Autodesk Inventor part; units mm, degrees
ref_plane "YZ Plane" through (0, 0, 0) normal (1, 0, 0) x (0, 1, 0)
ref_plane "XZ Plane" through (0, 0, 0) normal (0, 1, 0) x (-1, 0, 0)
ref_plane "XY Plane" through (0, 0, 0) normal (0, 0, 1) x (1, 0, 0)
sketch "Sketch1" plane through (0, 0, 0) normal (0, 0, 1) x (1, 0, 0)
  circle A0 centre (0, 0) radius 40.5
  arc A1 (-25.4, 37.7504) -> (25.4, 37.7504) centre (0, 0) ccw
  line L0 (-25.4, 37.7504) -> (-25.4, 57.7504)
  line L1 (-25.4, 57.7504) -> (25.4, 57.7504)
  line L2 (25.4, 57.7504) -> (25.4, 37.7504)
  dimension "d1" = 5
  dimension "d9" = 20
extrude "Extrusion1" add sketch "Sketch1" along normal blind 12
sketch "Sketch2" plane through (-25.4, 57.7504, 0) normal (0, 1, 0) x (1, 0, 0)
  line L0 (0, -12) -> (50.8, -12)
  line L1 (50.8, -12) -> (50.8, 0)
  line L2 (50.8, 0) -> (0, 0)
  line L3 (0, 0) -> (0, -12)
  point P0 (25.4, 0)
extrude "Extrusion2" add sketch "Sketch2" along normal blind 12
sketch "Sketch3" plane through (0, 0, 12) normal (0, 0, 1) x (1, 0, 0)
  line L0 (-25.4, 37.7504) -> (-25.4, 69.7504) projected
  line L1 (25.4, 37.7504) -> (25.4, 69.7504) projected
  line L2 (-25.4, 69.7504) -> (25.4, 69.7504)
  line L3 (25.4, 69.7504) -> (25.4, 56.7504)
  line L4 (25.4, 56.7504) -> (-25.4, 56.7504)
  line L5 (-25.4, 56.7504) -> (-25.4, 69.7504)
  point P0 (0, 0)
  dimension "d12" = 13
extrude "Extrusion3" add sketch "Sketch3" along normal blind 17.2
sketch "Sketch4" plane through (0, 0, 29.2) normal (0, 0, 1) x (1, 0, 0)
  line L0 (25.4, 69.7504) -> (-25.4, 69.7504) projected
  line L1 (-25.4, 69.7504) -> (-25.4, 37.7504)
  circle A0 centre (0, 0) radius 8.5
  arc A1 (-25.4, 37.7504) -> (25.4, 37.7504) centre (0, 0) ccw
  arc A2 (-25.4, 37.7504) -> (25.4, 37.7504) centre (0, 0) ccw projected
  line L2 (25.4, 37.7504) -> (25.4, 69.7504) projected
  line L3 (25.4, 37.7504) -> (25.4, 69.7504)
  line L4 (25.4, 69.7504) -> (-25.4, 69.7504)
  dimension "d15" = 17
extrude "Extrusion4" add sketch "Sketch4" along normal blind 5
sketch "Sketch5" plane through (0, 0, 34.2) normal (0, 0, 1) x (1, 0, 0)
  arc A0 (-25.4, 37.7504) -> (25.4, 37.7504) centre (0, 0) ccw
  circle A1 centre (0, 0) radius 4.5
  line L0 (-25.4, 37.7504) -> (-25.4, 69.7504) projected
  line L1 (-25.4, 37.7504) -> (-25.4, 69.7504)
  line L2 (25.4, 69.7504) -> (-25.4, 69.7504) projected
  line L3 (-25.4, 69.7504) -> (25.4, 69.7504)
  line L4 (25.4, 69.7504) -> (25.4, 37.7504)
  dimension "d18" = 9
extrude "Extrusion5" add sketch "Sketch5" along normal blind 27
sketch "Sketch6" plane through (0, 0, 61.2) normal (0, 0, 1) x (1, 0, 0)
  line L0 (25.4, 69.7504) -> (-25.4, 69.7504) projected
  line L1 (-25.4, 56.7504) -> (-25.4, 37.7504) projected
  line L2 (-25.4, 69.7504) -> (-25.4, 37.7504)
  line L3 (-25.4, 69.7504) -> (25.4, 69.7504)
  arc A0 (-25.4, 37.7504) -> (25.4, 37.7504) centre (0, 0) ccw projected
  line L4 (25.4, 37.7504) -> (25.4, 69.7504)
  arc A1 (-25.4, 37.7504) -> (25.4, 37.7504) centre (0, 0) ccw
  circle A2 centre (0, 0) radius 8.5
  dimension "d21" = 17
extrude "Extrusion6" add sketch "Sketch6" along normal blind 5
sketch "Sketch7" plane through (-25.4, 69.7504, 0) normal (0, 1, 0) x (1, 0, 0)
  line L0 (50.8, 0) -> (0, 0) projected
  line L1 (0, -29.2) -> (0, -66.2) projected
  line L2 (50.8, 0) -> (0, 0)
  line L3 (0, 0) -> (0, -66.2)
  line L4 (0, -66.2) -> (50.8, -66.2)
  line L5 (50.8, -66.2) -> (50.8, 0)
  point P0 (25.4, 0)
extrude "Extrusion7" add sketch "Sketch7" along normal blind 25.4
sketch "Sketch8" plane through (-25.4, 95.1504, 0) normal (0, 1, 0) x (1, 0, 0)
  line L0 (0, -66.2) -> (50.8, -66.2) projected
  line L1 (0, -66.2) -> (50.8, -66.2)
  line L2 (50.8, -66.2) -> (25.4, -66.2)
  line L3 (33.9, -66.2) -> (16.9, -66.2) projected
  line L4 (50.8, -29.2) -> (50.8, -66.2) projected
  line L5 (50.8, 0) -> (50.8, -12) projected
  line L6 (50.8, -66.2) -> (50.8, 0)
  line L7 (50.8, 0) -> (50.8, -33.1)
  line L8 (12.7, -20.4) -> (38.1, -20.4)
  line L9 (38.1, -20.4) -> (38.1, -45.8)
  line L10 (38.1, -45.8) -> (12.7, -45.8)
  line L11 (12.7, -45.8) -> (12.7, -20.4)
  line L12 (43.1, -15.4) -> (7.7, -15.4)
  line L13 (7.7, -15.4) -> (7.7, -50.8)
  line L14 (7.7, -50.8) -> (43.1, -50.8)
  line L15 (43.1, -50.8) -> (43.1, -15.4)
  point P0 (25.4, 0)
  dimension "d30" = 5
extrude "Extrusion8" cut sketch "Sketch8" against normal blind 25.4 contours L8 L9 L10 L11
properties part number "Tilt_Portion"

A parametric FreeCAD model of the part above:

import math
import FreeCAD as App
import Part
import Sketcher
from FreeCAD import Vector

doc = App.newDocument("Part")
body = doc.addObject("PartDesign::Body", "Body")

# Sketch on XY plane
sketch1 = body.newObject("Sketcher::SketchObject", "Sketch")
sketch1.AttachmentSupport = (doc.getObject("XY_Plane"), [""])
sketch1.MapMode = "FlatFace"
sketch1.addGeometry([
    Part.LineSegment(Vector(-25, 58, 0), Vector(-25, 38, 0)),  # 0
    Part.ArcOfCircle(Part.Circle(Vector(0, 0, 0), Vector(0, 0, 1), 46), math.radians(124), math.radians(416)),  # 1
    Part.LineSegment(Vector(25, 38, 0), Vector(25, 58, 0)),  # 2
    Part.LineSegment(Vector(25, 58, 0), Vector(-25, 58, 0)),  # 3
    Part.Circle(Vector(0, 0, 0), Vector(0, 0, 1), 40),  # 4
], False)
sketch1.addConstraint([
    Sketcher.Constraint("Coincident", 0, 2, 1, 1),
    Sketcher.Constraint("Coincident", 1, 2, 2, 1),
    Sketcher.Constraint("Coincident", 2, 2, 3, 1),
    Sketcher.Constraint("Coincident", 3, 2, 0, 1),
    Sketcher.Constraint("Vertical", 0),
    Sketcher.Constraint("Vertical", 2),
    Sketcher.Constraint("Horizontal", 3),
    Sketcher.Constraint("Coincident", 1, 3, -1, 1),
    Sketcher.Constraint("Coincident", 4, 3, -1, 1),
    Sketcher.Constraint("Horizontal", 0, 2, 1, 2),
    Sketcher.Constraint("DistanceY", 0, 2, 0, 1, 20.0),
    Sketcher.Constraint("Diameter", 4, 81.0),
    Sketcher.Constraint("Radius", 1, 45.5),
    Sketcher.Constraint("DistanceX", 3, 2, 3, 1, 50.8),
])
pad1 = body.newObject("PartDesign::Pad", "Pad")
pad1.Profile = sketch1
pad1.Length = 12

# Sketch on XZ plane
sketch2 = body.newObject("Sketcher::SketchObject", "Sketch001")
sketch2.AttachmentSupport = (doc.getObject("XZ_Plane"), [""])
sketch2.MapMode = "FlatFace"
sketch2.AttachmentOffset = App.Placement(Vector(0, 0, -57.7504), App.Rotation())
sketch2.addGeometry([
    Part.LineSegment(Vector(-25, 0, 0), Vector(-25, 12, 0)),
    Part.LineSegment(Vector(-25, 12, 0), Vector(25, 12, 0)),
    Part.LineSegment(Vector(25, 12, 0), Vector(25, 0, 0)),
    Part.LineSegment(Vector(25, 0, 0), Vector(-25, 0, 0)),
], False)
sketch2.addConstraint([
    Sketcher.Constraint("Coincident", 0, 2, 1, 1),
    Sketcher.Constraint("Coincident", 1, 2, 2, 1),
    Sketcher.Constraint("Coincident", 2, 2, 3, 1),
    Sketcher.Constraint("Coincident", 3, 2, 0, 1),
    Sketcher.Constraint("Vertical", 0),
    Sketcher.Constraint("Horizontal", 1),
    Sketcher.Constraint("Vertical", 2),
    Sketcher.Constraint("Horizontal", 3),
    Sketcher.Constraint("Symmetric", 2, 2, 3, 2, -1, 1),
    Sketcher.Constraint("DistanceY", 0, 1, 0, 2, 12.0),
    Sketcher.Constraint("DistanceX", 1, 1, 1, 2, 50.8),
])
pad2 = body.newObject("PartDesign::Pad", "Pad001")
pad2.Profile = sketch2
pad2.Length = 12
pad2.Reversed = True

# Sketch on XY plane
sketch3 = body.newObject("Sketcher::SketchObject", "Sketch002")
sketch3.AttachmentSupport = (doc.getObject("XY_Plane"), [""])
sketch3.MapMode = "FlatFace"
sketch3.AttachmentOffset = App.Placement(Vector(0, 0, 12), App.Rotation())
sketch3.addGeometry([
    Part.LineSegment(Vector(-25, 70, 0), Vector(-25, 57, 0)),
    Part.LineSegment(Vector(-25, 57, 0), Vector(25, 57, 0)),
    Part.LineSegment(Vector(25, 57, 0), Vector(25, 70, 0)),
    Part.LineSegment(Vector(25, 70, 0), Vector(-25, 70, 0)),
], False)
sketch3.addConstraint([
    Sketcher.Constraint("Coincident", 0, 2, 1, 1),
    Sketcher.Constraint("Coincident", 1, 2, 2, 1),
    Sketcher.Constraint("Coincident", 2, 2, 3, 1),
    Sketcher.Constraint("Coincident", 3, 2, 0, 1),
    Sketcher.Constraint("Vertical", 0),
    Sketcher.Constraint("Horizontal", 1),
    Sketcher.Constraint("Vertical", 2),
    Sketcher.Constraint("Horizontal", 3),
    Sketcher.Constraint("DistanceY", 0, 2, 0, 1, 13.0),
    Sketcher.Constraint("DistanceX", 1, 1, 1, 2, 50.8),
    Sketcher.Constraint("DistanceX", 0, 2, -1, 1, 25.4),
    Sketcher.Constraint("DistanceY", -1, 1, 0, 2, 56.7504),
])
pad3 = body.newObject("PartDesign::Pad", "Pad002")
pad3.Profile = sketch3
pad3.Length = 17.2

# Sketch on XY plane
sketch4 = body.newObject("Sketcher::SketchObject", "Sketch003")
sketch4.AttachmentSupport = (doc.getObject("XY_Plane"), [""])
sketch4.MapMode = "FlatFace"
sketch4.AttachmentOffset = App.Placement(Vector(0, 0, 29.2), App.Rotation())
sketch4.addGeometry([
    Part.LineSegment(Vector(25, 38, 0), Vector(25, 70, 0)),  # 0
    Part.LineSegment(Vector(25, 70, 0), Vector(-25, 70, 0)),  # 1
    Part.LineSegment(Vector(-25, 70, 0), Vector(-25, 38, 0)),  # 2
    Part.ArcOfCircle(Part.Circle(Vector(0, 0, 0), Vector(0, 0, 1), 46), math.radians(124), math.radians(416)),  # 3
    Part.Circle(Vector(0, 0, 0), Vector(0, 0, 1), 8),  # 4
], False)
sketch4.addConstraint([
    Sketcher.Constraint("Coincident", 0, 2, 1, 1),
    Sketcher.Constraint("Coincident", 1, 2, 2, 1),
    Sketcher.Constraint("Coincident", 2, 2, 3, 1),
    Sketcher.Constraint("Coincident", 3, 2, 0, 1),
    Sketcher.Constraint("Vertical", 0),
    Sketcher.Constraint("Horizontal", 1),
    Sketcher.Constraint("Vertical", 2),
    Sketcher.Constraint("Coincident", 3, 3, -1, 1),
    Sketcher.Constraint("Coincident", 4, 3, -1, 1),
    Sketcher.Constraint("Horizontal", 2, 2, 3, 2),
    Sketcher.Constraint("Diameter", 4, 17.0),
    Sketcher.Constraint("Radius", 3, 45.5),
    Sketcher.Constraint("DistanceY", 0, 1, 0, 2, 32.0),
    Sketcher.Constraint("DistanceX", 1, 2, 1, 1, 50.8),
])
pad4 = body.newObject("PartDesign::Pad", "Pad003")
pad4.Profile = sketch4
pad4.Length = 5

# Sketch on XY plane
sketch5 = body.newObject("Sketcher::SketchObject", "Sketch004")
sketch5.AttachmentSupport = (doc.getObject("XY_Plane"), [""])
sketch5.MapMode = "FlatFace"
sketch5.AttachmentOffset = App.Placement(Vector(0, 0, 34.2), App.Rotation())
sketch5.addGeometry([
    Part.LineSegment(Vector(-25.4, 69.8, 0), Vector(-25.4, 37.8, 0)),  # 0
    Part.ArcOfCircle(Part.Circle(Vector(0, 0, 0), Vector(0, 0, 1), 45.5), math.radians(124), math.radians(416)),  # 1
    Part.LineSegment(Vector(25.4, 37.8, 0), Vector(25.4, 69.8, 0)),  # 2
    Part.LineSegment(Vector(25.4, 69.8, 0), Vector(-25.4, 69.8, 0)),  # 3
    Part.Circle(Vector(0, 0, 0), Vector(0, 0, 1), 4.5),  # 4
], False)
sketch5.addConstraint([
    Sketcher.Constraint("Coincident", 0, 2, 1, 1),
    Sketcher.Constraint("Coincident", 1, 2, 2, 1),
    Sketcher.Constraint("Coincident", 2, 2, 3, 1),
    Sketcher.Constraint("Coincident", 3, 2, 0, 1),
    Sketcher.Constraint("Vertical", 0),
    Sketcher.Constraint("Vertical", 2),
    Sketcher.Constraint("Horizontal", 3),
    Sketcher.Constraint("Coincident", 1, 3, -1, 1),
    Sketcher.Constraint("Coincident", 4, 3, -1, 1),
    Sketcher.Constraint("Horizontal", 0, 2, 1, 2),
    Sketcher.Constraint("Diameter", 4, 9.0),
    Sketcher.Constraint("Radius", 1, 45.5),
    Sketcher.Constraint("DistanceY", 0, 2, 0, 1, 32.0),
    Sketcher.Constraint("DistanceX", 3, 2, 3, 1, 50.8),
])
pad5 = body.newObject("PartDesign::Pad", "Pad004")
pad5.Profile = sketch5
pad5.Length = 27

# Sketch on XY plane
sketch6 = body.newObject("Sketcher::SketchObject", "Sketch005")
sketch6.AttachmentSupport = (doc.getObject("XY_Plane"), [""])
sketch6.MapMode = "FlatFace"
sketch6.AttachmentOffset = App.Placement(Vector(0, 0, 61.2), App.Rotation())
sketch6.addGeometry([
    Part.LineSegment(Vector(25, 38, 0), Vector(25, 70, 0)),  # 0
    Part.LineSegment(Vector(25, 70, 0), Vector(-25, 70, 0)),  # 1
    Part.LineSegment(Vector(-25, 70, 0), Vector(-25, 38, 0)),  # 2
    Part.ArcOfCircle(Part.Circle(Vector(0, 0, 0), Vector(0, 0, 1), 46), math.radians(124), math.radians(416)),  # 3
    Part.Circle(Vector(0, 0, 0), Vector(0, 0, 1), 8),  # 4
], False)
sketch6.addConstraint([
    Sketcher.Constraint("Coincident", 0, 2, 1, 1),
    Sketcher.Constraint("Coincident", 1, 2, 2, 1),
    Sketcher.Constraint("Coincident", 2, 2, 3, 1),
    Sketcher.Constraint("Coincident", 3, 2, 0, 1),
    Sketcher.Constraint("Vertical", 0),
    Sketcher.Constraint("Horizontal", 1),
    Sketcher.Constraint("Vertical", 2),
    Sketcher.Constraint("Coincident", 3, 3, -1, 1),
    Sketcher.Constraint("Coincident", 4, 3, -1, 1),
    Sketcher.Constraint("Horizontal", 2, 2, 3, 2),
    Sketcher.Constraint("Diameter", 4, 17.0),
    Sketcher.Constraint("Radius", 3, 45.5),
    Sketcher.Constraint("DistanceY", 0, 1, 0, 2, 32.0),
    Sketcher.Constraint("DistanceX", 1, 2, 1, 1, 50.8),
])
pad6 = body.newObject("PartDesign::Pad", "Pad005")
pad6.Profile = sketch6
pad6.Length = 5

# Sketch on XZ plane
sketch7 = body.newObject("Sketcher::SketchObject", "Sketch006")
sketch7.AttachmentSupport = (doc.getObject("XZ_Plane"), [""])
sketch7.MapMode = "FlatFace"
sketch7.AttachmentOffset = App.Placement(Vector(0, 0, -69.7504), App.Rotation())
sketch7.addGeometry([
    Part.LineSegment(Vector(25, 66, 0), Vector(25, 0, 0)),
    Part.LineSegment(Vector(25, 0, 0), Vector(-25, 0, 0)),
    Part.LineSegment(Vector(-25, 0, 0), Vector(-25, 66, 0)),
    Part.LineSegment(Vector(-25, 66, 0), Vector(25, 66, 0)),
], False)
sketch7.addConstraint([
    Sketcher.Constraint("Coincident", 0, 2, 1, 1),
    Sketcher.Constraint("Coincident", 1, 2, 2, 1),
    Sketcher.Constraint("Coincident", 2, 2, 3, 1),
    Sketcher.Constraint("Coincident", 3, 2, 0, 1),
    Sketcher.Constraint("Vertical", 0),
    Sketcher.Constraint("Horizontal", 1),
    Sketcher.Constraint("Vertical", 2),
    Sketcher.Constraint("Horizontal", 3),
    Sketcher.Constraint("Symmetric", 0, 2, 1, 2, -1, 1),
    Sketcher.Constraint("DistanceX", 1, 2, 1, 1, 50.8),
    Sketcher.Constraint("DistanceY", 0, 2, 0, 1, 66.2),
])
pad7 = body.newObject("PartDesign::Pad", "Pad006")
pad7.Profile = sketch7
pad7.Length = 25.4
pad7.Reversed = True

# Sketch on XZ plane
sketch8 = body.newObject("Sketcher::SketchObject", "Sketch007")
sketch8.AttachmentSupport = (doc.getObject("XZ_Plane"), [""])
sketch8.MapMode = "FlatFace"
sketch8.AttachmentOffset = App.Placement(Vector(0, 0, -95.1504), App.Rotation())
sketch8.addGeometry([
    Part.LineSegment(Vector(13, 20, 0), Vector(-13, 20, 0)),
    Part.LineSegment(Vector(-13, 20, 0), Vector(-13, 46, 0)),
    Part.LineSegment(Vector(-13, 46, 0), Vector(13, 46, 0)),
    Part.LineSegment(Vector(13, 46, 0), Vector(13, 20, 0)),
], False)
sketch8.addConstraint([
    Sketcher.Constraint("Coincident", 0, 2, 1, 1),
    Sketcher.Constraint("Coincident", 1, 2, 2, 1),
    Sketcher.Constraint("Coincident", 2, 2, 3, 1),
    Sketcher.Constraint("Coincident", 3, 2, 0, 1),
    Sketcher.Constraint("Horizontal", 0),
    Sketcher.Constraint("Vertical", 1),
    Sketcher.Constraint("Horizontal", 2),
    Sketcher.Constraint("Vertical", 3),
    Sketcher.Constraint("Equal", 2, 1),
    Sketcher.Constraint("DistanceX", 0, 2, 0, 1, 25.4),
    Sketcher.Constraint("DistanceX", 0, 2, -1, 1, 12.7),
    Sketcher.Constraint("DistanceY", -1, 1, 0, 2, 20.4),
])
pocket1 = body.newObject("PartDesign::Pocket", "Pocket")
pocket1.Profile = sketch8
pocket1.Length = 25.4
pocket1.Reversed = True

doc.recompute()
